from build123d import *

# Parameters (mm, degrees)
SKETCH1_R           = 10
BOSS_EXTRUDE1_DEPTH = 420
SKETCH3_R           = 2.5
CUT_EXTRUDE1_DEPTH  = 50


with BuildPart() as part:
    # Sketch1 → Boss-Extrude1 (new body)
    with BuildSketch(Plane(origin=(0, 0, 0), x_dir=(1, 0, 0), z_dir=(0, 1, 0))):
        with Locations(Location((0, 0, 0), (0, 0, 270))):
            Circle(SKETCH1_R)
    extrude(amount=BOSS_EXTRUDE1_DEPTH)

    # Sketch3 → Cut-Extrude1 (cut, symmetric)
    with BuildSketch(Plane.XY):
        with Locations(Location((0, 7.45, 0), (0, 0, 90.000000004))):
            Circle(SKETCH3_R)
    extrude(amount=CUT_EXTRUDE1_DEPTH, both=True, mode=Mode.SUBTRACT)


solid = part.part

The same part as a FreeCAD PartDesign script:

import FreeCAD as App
import Part
import Sketcher

doc = App.newDocument("Part")
body = doc.addObject("PartDesign::Body", "Body")

# Sketch on XZ plane
sketch1 = body.newObject("Sketcher::SketchObject", "Sketch")
sketch1.AttachmentSupport = (doc.getObject("XZ_Plane"), [""])
sketch1.MapMode = "FlatFace"
sketch1.addGeometry(Part.Circle(App.Vector(0, 0, 0), App.Vector(0, 0, 1), 10), False)
sketch1.addConstraint(Sketcher.Constraint("Coincident", 0, 3, -1, 1))
sketch1.addConstraint(Sketcher.Constraint("Diameter", 0, 20.0))
pad1 = body.newObject("PartDesign::Pad", "Pad")
pad1.Profile = sketch1
pad1.Length = 420
pad1.Reversed = True

# Sketch on XY plane
sketch2 = body.newObject("Sketcher::SketchObject", "Sketch001")
sketch2.AttachmentSupport = (doc.getObject("XY_Plane"), [""])
sketch2.MapMode = "FlatFace"
sketch2.addGeometry(Part.Circle(App.Vector(0, 7.5, 0), App.Vector(0, 0, 1), 2.5), False)
sketch2.addConstraint(Sketcher.Constraint("PointOnObject", 0, 3, -2))
sketch2.addConstraint(Sketcher.Constraint("Diameter", 0, 5.0))
sketch2.addConstraint(Sketcher.Constraint("DistanceY", -1, 1, 0, 3, 7.45))
pocket1 = body.newObject("PartDesign::Pocket", "Pocket")
pocket1.Profile = sketch2
pocket1.Length = 100
pocket1.Midplane = True

doc.recompute()
